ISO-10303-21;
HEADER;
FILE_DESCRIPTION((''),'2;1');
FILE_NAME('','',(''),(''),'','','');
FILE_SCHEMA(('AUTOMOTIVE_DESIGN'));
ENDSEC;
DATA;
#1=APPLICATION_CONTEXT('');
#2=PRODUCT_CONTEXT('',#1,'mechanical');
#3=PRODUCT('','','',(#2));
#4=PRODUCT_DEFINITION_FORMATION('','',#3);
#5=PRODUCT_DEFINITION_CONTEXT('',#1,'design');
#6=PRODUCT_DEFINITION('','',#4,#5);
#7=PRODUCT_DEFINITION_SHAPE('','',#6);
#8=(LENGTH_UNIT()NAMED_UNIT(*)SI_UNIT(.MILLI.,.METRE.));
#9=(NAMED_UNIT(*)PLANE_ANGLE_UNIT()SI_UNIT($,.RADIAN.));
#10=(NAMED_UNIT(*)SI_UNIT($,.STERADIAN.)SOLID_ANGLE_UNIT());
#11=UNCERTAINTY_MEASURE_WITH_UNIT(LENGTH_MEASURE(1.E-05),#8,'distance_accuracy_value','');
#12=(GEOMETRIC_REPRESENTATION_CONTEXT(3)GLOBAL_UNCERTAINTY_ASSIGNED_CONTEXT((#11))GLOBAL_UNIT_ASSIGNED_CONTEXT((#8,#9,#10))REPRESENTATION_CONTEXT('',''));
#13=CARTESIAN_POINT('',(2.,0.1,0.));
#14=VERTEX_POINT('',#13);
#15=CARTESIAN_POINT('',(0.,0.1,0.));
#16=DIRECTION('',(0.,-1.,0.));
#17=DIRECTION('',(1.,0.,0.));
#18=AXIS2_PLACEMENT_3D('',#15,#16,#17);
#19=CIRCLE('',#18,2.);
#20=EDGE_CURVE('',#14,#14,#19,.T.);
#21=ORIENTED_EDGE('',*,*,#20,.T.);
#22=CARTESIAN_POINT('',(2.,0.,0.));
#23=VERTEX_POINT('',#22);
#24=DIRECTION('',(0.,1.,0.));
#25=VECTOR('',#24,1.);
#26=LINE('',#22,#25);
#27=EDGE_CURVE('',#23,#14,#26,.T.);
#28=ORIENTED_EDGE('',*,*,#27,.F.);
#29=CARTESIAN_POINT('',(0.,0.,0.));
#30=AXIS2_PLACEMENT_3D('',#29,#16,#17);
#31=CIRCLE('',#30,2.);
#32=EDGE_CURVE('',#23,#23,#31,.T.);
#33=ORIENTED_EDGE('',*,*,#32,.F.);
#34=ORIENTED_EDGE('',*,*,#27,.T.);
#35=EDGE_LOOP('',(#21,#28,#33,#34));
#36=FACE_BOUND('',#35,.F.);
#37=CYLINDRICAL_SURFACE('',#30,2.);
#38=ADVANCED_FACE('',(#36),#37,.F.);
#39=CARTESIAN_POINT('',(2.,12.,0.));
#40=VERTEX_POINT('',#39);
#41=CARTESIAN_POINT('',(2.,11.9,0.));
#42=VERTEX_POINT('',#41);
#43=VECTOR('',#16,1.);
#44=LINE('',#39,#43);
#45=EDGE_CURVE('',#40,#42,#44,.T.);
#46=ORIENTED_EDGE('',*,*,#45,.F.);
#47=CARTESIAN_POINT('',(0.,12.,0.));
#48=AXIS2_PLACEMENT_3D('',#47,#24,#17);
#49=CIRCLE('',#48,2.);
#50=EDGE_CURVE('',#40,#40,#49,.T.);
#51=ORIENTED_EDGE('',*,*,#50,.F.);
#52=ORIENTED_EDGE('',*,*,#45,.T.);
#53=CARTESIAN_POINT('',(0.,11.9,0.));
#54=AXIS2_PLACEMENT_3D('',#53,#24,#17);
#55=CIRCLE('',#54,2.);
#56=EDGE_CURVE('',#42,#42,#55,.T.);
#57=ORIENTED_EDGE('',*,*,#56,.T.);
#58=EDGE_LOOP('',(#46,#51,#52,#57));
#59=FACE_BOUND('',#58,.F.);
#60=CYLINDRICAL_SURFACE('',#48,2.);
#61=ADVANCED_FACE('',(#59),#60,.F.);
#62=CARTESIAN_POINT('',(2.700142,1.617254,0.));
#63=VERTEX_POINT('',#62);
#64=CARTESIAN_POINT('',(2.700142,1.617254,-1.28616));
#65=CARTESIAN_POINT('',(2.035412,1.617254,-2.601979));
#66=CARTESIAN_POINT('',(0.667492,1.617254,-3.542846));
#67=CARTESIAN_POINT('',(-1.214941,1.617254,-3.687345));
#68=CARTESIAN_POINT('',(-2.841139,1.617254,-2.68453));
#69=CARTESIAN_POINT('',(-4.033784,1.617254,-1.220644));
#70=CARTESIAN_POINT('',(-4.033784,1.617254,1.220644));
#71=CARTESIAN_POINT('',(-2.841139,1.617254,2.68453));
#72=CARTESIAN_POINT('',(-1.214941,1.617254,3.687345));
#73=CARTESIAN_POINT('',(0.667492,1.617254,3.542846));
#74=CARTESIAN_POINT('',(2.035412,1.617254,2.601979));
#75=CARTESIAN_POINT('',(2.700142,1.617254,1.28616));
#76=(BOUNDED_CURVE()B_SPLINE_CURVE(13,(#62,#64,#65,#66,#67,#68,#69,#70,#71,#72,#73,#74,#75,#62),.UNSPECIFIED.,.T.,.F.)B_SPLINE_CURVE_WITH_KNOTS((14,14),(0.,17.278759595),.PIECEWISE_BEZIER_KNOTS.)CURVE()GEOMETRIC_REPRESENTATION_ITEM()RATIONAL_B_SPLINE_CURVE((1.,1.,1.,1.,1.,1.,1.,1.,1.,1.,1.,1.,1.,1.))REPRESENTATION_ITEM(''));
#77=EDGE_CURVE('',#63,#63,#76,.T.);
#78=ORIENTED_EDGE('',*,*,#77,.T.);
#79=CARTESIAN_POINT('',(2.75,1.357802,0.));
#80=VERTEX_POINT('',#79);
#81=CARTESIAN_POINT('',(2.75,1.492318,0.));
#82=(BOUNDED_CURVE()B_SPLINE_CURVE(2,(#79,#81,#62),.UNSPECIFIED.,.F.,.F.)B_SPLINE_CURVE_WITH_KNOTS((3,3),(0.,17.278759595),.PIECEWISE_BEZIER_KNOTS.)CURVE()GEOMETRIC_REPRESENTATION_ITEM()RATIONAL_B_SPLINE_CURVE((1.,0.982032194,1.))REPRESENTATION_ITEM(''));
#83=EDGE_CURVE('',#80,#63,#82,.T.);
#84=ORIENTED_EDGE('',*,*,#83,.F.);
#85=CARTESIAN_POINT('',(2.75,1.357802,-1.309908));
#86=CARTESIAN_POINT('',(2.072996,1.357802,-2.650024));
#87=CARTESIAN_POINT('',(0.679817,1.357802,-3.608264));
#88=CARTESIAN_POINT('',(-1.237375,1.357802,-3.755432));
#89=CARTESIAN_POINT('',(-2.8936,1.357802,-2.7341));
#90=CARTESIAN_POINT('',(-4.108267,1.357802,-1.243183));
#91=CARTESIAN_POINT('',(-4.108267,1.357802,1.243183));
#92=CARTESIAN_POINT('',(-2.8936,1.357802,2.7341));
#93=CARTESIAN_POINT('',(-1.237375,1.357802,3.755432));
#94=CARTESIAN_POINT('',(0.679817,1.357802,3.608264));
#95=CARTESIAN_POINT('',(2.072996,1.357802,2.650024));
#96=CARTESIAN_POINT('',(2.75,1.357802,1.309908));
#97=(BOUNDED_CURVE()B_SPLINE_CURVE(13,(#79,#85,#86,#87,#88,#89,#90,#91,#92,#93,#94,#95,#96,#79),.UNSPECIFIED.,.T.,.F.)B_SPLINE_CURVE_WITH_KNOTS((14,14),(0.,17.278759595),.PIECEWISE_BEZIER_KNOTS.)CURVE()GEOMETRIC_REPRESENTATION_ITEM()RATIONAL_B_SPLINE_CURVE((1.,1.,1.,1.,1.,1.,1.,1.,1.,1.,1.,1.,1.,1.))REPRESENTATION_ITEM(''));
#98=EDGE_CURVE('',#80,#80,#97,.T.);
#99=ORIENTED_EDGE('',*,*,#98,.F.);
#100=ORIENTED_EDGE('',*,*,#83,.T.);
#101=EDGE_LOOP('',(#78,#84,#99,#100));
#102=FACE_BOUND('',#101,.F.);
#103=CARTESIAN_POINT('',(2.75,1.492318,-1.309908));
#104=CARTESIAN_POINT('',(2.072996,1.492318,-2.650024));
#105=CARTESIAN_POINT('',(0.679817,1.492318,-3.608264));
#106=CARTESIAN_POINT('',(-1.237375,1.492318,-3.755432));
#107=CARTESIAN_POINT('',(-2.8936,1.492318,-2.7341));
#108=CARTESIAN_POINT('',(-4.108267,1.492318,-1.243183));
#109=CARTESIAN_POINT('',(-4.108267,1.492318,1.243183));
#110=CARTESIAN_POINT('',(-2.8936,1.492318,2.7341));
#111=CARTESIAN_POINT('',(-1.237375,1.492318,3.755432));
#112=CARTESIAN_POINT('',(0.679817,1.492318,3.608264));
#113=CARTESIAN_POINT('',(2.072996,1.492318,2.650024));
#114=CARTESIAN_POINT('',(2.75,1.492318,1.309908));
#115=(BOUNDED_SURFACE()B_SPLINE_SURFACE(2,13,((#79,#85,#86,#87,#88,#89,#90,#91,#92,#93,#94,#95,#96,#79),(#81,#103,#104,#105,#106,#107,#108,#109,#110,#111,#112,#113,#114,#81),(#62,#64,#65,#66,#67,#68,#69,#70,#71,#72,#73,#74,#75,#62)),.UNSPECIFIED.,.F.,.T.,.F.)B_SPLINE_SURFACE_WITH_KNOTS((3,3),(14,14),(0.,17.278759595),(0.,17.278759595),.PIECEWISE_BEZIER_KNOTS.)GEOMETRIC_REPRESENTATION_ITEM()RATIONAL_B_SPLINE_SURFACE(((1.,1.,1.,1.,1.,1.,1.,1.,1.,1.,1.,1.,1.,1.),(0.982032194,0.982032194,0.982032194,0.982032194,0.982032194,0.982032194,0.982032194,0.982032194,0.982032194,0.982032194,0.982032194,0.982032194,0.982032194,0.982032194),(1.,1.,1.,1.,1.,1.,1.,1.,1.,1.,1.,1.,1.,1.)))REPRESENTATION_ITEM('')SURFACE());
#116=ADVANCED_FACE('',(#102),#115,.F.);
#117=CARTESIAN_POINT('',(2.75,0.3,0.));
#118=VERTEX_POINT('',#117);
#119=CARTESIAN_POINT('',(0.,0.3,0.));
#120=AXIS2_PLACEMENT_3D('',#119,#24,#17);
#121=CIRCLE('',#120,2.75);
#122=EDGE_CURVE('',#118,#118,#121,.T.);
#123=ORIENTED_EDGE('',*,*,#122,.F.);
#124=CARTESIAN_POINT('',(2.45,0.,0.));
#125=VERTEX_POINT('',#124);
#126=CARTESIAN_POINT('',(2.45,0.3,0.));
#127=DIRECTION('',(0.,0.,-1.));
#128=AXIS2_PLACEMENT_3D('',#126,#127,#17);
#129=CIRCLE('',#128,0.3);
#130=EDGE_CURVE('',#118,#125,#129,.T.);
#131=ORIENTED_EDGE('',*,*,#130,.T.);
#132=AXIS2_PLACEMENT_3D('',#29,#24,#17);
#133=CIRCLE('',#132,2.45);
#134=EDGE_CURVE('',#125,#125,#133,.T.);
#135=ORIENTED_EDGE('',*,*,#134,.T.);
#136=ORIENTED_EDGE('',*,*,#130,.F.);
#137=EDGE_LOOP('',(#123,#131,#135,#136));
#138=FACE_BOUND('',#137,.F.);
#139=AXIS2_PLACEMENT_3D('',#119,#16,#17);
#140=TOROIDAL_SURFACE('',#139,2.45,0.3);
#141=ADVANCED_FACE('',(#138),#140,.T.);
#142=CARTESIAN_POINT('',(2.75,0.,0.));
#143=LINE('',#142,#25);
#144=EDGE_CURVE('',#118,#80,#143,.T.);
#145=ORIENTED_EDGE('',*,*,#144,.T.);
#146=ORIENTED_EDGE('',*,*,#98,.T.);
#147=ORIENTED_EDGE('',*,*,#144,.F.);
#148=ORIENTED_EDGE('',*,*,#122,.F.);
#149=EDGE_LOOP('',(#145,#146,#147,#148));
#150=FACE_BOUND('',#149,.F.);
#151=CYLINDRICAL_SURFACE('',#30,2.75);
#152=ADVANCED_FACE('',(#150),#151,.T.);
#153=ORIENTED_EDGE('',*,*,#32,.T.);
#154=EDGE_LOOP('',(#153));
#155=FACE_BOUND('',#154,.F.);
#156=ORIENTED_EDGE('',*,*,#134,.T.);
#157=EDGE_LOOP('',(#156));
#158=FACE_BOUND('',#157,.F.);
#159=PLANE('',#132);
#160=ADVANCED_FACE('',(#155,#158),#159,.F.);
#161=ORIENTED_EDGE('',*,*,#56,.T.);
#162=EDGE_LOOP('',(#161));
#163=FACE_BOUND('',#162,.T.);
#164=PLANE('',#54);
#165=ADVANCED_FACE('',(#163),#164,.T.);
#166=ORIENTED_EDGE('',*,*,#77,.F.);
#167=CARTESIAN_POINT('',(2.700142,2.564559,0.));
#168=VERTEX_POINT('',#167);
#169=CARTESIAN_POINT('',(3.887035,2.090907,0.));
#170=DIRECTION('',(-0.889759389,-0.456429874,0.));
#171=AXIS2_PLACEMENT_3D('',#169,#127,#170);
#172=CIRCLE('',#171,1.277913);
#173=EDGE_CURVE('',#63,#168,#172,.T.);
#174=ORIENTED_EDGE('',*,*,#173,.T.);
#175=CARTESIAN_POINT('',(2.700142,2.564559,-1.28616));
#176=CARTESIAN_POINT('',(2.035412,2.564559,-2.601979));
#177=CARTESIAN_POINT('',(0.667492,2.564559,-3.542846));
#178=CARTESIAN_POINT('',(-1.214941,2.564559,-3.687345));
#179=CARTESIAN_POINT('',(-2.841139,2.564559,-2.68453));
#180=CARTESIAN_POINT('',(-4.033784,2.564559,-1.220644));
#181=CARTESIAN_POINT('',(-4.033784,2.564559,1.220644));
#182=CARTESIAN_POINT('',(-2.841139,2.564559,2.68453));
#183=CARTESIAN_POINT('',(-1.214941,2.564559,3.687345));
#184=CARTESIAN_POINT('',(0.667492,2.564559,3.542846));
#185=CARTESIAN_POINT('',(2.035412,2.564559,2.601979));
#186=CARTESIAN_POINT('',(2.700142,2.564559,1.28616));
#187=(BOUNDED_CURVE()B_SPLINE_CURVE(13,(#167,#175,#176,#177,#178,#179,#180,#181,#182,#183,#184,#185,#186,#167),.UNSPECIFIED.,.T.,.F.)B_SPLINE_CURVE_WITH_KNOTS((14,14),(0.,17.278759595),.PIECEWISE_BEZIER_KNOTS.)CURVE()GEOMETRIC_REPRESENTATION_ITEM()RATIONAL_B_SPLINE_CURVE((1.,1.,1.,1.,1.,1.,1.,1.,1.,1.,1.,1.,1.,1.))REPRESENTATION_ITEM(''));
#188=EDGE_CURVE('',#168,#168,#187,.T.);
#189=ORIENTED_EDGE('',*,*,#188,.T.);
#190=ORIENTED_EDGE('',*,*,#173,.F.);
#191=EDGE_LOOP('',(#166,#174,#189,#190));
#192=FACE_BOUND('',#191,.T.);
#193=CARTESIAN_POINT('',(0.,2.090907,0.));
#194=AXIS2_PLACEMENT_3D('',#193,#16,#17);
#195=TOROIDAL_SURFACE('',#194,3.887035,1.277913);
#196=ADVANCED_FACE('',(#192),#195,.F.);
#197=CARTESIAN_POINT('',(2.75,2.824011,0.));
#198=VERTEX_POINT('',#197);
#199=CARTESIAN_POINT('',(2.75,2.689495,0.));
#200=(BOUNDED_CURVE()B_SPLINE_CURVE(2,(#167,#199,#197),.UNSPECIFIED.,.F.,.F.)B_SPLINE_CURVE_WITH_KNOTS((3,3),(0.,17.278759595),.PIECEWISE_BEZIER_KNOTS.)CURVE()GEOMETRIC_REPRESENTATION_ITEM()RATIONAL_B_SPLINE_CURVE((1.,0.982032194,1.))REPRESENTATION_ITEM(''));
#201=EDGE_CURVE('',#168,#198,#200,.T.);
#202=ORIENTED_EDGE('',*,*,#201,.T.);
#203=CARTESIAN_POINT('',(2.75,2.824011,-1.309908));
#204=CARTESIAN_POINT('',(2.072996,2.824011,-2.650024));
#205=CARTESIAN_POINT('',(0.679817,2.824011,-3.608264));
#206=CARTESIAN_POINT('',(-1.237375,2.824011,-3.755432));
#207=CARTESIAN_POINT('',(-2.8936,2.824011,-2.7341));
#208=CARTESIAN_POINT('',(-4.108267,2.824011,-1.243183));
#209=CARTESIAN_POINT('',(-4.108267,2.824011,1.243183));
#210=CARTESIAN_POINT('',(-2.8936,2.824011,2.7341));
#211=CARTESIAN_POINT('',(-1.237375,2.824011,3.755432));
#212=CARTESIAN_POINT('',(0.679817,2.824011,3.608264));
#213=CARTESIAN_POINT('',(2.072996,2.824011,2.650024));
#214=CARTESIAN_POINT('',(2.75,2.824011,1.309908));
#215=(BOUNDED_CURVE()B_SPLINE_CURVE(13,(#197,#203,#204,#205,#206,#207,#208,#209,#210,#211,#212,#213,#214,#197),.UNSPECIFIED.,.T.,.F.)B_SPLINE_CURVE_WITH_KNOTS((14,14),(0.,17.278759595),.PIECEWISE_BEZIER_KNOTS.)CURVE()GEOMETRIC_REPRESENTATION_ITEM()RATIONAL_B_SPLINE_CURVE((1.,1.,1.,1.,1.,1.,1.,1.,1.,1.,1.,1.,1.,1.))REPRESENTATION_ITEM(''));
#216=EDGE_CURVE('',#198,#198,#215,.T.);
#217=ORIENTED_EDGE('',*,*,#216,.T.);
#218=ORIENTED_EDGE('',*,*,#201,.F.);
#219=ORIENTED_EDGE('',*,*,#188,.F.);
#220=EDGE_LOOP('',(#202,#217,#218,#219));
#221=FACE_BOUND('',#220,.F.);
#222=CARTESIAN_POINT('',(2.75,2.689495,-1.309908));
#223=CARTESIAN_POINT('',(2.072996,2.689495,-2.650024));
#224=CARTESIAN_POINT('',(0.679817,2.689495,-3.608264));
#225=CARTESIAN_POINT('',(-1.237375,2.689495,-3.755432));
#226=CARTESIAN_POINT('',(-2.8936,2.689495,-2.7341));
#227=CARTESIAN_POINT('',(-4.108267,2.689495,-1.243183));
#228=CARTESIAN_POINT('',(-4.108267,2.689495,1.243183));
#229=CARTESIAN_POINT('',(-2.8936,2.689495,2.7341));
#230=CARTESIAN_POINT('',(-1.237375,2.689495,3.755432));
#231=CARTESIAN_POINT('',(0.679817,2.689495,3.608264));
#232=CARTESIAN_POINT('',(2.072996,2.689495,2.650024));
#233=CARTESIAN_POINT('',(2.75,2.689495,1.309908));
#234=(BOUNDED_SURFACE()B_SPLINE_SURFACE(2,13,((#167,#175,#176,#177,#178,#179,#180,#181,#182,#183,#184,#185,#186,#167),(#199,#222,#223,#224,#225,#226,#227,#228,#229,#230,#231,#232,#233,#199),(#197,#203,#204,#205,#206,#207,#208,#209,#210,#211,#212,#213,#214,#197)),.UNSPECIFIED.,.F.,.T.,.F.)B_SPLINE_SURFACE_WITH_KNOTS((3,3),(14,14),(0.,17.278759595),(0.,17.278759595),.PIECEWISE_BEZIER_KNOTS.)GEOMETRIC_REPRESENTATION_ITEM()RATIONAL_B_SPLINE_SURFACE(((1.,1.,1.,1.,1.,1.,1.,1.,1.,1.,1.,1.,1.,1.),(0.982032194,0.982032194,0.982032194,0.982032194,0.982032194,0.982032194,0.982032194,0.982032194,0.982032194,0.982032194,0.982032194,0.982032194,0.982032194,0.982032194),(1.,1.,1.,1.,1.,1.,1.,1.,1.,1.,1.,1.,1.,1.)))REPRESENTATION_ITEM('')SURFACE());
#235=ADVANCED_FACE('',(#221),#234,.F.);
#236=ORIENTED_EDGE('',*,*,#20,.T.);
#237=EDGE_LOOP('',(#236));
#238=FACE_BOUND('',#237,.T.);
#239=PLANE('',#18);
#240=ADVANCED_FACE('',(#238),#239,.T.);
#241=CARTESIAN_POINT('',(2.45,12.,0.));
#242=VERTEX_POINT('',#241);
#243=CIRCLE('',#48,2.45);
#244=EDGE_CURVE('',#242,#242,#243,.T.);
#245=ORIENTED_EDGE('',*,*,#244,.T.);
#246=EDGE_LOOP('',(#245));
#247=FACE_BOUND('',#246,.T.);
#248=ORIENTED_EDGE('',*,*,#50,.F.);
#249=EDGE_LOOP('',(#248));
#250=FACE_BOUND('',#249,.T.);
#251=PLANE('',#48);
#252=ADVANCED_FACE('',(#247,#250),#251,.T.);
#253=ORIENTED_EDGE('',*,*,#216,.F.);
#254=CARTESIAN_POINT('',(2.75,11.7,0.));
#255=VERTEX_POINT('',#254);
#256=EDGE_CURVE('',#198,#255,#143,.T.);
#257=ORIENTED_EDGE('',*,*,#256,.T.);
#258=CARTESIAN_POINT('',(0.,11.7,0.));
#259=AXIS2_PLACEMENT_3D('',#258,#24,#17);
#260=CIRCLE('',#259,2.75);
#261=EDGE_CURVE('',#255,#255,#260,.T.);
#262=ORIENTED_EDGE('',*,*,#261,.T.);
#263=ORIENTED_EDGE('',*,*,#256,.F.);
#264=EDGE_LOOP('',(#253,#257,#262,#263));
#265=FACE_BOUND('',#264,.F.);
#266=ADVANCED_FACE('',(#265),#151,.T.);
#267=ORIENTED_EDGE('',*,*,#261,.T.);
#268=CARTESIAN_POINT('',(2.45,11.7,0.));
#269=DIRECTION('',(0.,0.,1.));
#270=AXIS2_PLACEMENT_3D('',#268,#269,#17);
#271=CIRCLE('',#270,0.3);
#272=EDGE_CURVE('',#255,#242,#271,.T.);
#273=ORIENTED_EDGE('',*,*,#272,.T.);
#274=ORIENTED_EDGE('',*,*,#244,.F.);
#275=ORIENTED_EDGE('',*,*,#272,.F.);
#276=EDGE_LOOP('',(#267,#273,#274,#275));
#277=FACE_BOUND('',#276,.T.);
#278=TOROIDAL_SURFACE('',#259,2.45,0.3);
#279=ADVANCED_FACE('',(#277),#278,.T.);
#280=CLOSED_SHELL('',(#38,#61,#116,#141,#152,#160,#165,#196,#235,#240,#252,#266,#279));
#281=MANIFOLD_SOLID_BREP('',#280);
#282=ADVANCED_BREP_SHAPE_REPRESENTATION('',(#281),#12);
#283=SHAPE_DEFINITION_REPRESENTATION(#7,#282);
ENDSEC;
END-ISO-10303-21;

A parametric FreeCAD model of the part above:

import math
import FreeCAD as App
import Part
import Sketcher


def edges_at(feature, points):
    """Names of the edges that pass closest to the given points."""
    edges = feature.Shape.Edges
    near = lambda p: min(range(len(edges)), key=lambda i: edges[i].distToShape(Part.Vertex(*p))[0])
    return sorted({f"Edge{near(p) + 1}" for p in points})

doc = App.newDocument("Part")
params = doc.addObject("Spreadsheet::Sheet", "Params")
for row, (alias, value) in enumerate([
    ("sketch1_diameter", "5.5 mm"),
    ("pad1_length", "12 mm"),
    ("groove_angle", "360 deg"),
    ("fillet_radius", "0.3 mm"),
    ("fillet2_radius", "0.3 mm"),
    ("fillet3_radius", "0.7 mm"),
    ("sketch3_diameter", "4 mm"),
    ("pocket1_length", "0.1 mm"),
    ("sketch4_diameter", "4 mm"),
    ("pocket2_length", "0.1 mm"),
], start=1):
    params.set(f"A{row}", alias)
    params.set(f"B{row}", "=" + value)
    params.setAlias(f"B{row}", alias)

body = doc.addObject("PartDesign::Body", "Body")

sketch1 = body.newObject("Sketcher::SketchObject", "Sketch")
sketch1.AttachmentSupport = (doc.getObject("XZ_Plane"), [""])
sketch1.MapMode = "FlatFace"
sketch1.addGeometry(Part.Circle(App.Vector(0, 0, 0), App.Vector(0, 0, 1), 2.75), False)
sketch1.addConstraint(Sketcher.Constraint("Coincident", 0, 3, -1, 1))
sketch1.addConstraint(Sketcher.Constraint("Diameter", 0, 5.5))
sketch1.setExpression("Constraints[1]", "Params.sketch1_diameter")
pad1 = body.newObject("PartDesign::Pad", "Pad")
pad1.Profile = sketch1
pad1.setExpression("Length", "Params.pad1_length")
pad1.Reversed = True

sketch2 = body.newObject("Sketcher::SketchObject", "Sketch001")
sketch2.AttachmentSupport = (doc.getObject("XY_Plane"), [""])
sketch2.MapMode = "FlatFace"
sketch2.addGeometry(Part.LineSegment(App.Vector(2.75, 1.507629, 0), App.Vector(2.75, 2.674184, 0)), False)
sketch2.addGeometry(Part.ArcOfCircle(Part.Circle(App.Vector(3.887035, 2.090907, 0), App.Vector(0, 0, 1), 1.277913), math.radians(152.843027), math.radians(207.156973)), False)
sketch2.addConstraint(Sketcher.Constraint("Coincident", 0, 1, 1, 2))
sketch2.addConstraint(Sketcher.Constraint("Coincident", 1, 1, 0, 2))
sketch2.addConstraint(Sketcher.Constraint("Vertical", 0))
sketch2.addConstraint(Sketcher.Constraint("DistanceX", -1, 1, 0, 1, 2.75))
sketch2.addConstraint(Sketcher.Constraint("Radius", 1, 1.277913))
sketch2.addConstraint(Sketcher.Constraint("DistanceY", 0, 1, 0, 2, 1.166556))
sketch2.addConstraint(Sketcher.Constraint("DistanceY", -1, 1, 0, 1, 1.507629))
groove = body.newObject("PartDesign::Groove", "Groove")
groove.Profile = sketch2
groove.ReferenceAxis = (sketch2, ["V_Axis"])
groove.setExpression("Angle", "Params.groove_angle")
doc.recompute()

fillet = body.newObject("PartDesign::Fillet", "Fillet")
fillet.Base = (groove, edges_at(groove, [(-2.75, 12, 0)]))
fillet.setExpression("Radius", "Params.fillet_radius")
doc.recompute()

fillet2 = body.newObject("PartDesign::Fillet", "Fillet001")
fillet2.Base = (fillet, edges_at(fillet, [(-2.75, 0, 0)]))
fillet2.setExpression("Radius", "Params.fillet2_radius")
doc.recompute()

fillet3 = body.newObject("PartDesign::Fillet", "Fillet002")
fillet3.Base = (fillet2, edges_at(fillet2, [(-2.75, 1.508, 0), (-2.75, 2.674, 0)]))
fillet3.setExpression("Radius", "Params.fillet3_radius")

sketch3 = body.newObject("Sketcher::SketchObject", "Sketch002")
sketch3.AttachmentSupport = (doc.getObject("XZ_Plane"), [""])
sketch3.MapMode = "FlatFace"
sketch3.AttachmentOffset = App.Placement(App.Vector(0, 0, -12), App.Rotation())
sketch3.addGeometry(Part.Circle(App.Vector(0, 0, 0), App.Vector(0, 0, 1), 2), False)
sketch3.addConstraint(Sketcher.Constraint("Coincident", 0, 3, -1, 1))
sketch3.addConstraint(Sketcher.Constraint("Diameter", 0, 4.0))
sketch3.setExpression("Constraints[1]", "Params.sketch3_diameter")
pocket1 = body.newObject("PartDesign::Pocket", "Pocket")
pocket1.Profile = sketch3
pocket1.setExpression("Length", "Params.pocket1_length")
pocket1.Reversed = True

sketch4 = body.newObject("Sketcher::SketchObject", "Sketch003")
sketch4.AttachmentSupport = (doc.getObject("XZ_Plane"), [""])
sketch4.MapMode = "FlatFace"
sketch4.addGeometry(Part.Circle(App.Vector(0, 0, 0), App.Vector(0, 0, 1), 2), False)
sketch4.addConstraint(Sketcher.Constraint("Coincident", 0, 3, -1, 1))
sketch4.addConstraint(Sketcher.Constraint("Diameter", 0, 4.0))
sketch4.setExpression("Constraints[1]", "Params.sketch4_diameter")
pocket2 = body.newObject("PartDesign::Pocket", "Pocket001")
pocket2.Profile = sketch4
pocket2.setExpression("Length", "Params.pocket2_length")

doc.recompute()
